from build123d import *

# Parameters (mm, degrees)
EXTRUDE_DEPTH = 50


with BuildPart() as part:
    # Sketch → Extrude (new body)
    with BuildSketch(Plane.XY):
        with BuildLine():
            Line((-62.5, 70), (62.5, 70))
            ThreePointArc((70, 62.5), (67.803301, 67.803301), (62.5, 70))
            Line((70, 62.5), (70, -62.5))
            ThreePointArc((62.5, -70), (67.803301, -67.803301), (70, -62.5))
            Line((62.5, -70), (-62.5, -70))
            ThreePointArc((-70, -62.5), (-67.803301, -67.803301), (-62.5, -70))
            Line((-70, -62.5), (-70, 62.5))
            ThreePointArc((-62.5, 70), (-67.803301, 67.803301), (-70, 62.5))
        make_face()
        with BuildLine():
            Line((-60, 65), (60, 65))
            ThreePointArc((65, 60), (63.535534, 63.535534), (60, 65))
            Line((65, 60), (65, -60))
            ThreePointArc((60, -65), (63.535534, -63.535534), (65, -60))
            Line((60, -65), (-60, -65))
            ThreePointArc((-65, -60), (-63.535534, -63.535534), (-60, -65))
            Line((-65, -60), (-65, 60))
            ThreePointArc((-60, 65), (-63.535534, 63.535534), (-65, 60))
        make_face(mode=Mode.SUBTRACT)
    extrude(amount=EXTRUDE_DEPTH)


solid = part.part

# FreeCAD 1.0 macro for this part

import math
import FreeCAD as App
import Part
import Sketcher

V = App.Vector
Q = App.Units.Quantity

doc = App.newDocument("Part")
body = doc.addObject("PartDesign::Body", "Body")

sketch1 = body.newObject("Sketcher::SketchObject", "Sketch")
sketch1.AttachmentSupport = (doc.getObject("XY_Plane"), [""])
sketch1.MapMode = "FlatFace"
sketch1.addGeometry(Part.LineSegment(V(62.5, 70, 0), V(-62.5, 70, 0)), False)
sketch1.addGeometry(Part.ArcOfCircle(Part.Circle(V(-62.5, 62.5, 0), V(0, 0, 1), 7.5), math.radians(89.999996), math.radians(180.000004)), False)
sketch1.addGeometry(Part.LineSegment(V(-70, 62.5, 0), V(-70, -62.5, 0)), False)
sketch1.addGeometry(Part.ArcOfCircle(Part.Circle(V(-62.5, -62.5, 0), V(0, 0, 1), 7.5), math.radians(179.999996), math.radians(270.000004)), False)
sketch1.addGeometry(Part.LineSegment(V(-62.5, -70, 0), V(62.5, -70, 0)), False)
sketch1.addGeometry(Part.ArcOfCircle(Part.Circle(V(62.5, -62.5, 0), V(0, 0, 1), 7.5), math.radians(-90.000004), math.radians(0.000004)), False)
sketch1.addGeometry(Part.LineSegment(V(70, -62.5, 0), V(70, 62.5, 0)), False)
sketch1.addGeometry(Part.ArcOfCircle(Part.Circle(V(62.5, 62.5, 0), V(0, 0, 1), 7.5), math.radians(-0.000004), math.radians(90.000004)), False)
sketch1.addGeometry(Part.LineSegment(V(-60, 65, 0), V(60, 65, 0)), False)
sketch1.addGeometry(Part.ArcOfCircle(Part.Circle(V(60, 60, 0), V(0, 0, 1), 5), math.radians(-0.000004), math.radians(90.000004)), False)
sketch1.addGeometry(Part.LineSegment(V(65, 60, 0), V(65, -60, 0)), False)
sketch1.addGeometry(Part.ArcOfCircle(Part.Circle(V(60, -60, 0), V(0, 0, 1), 5), math.radians(-90.000004), math.radians(0.000004)), False)
sketch1.addGeometry(Part.LineSegment(V(60, -65, 0), V(-60, -65, 0)), False)
sketch1.addGeometry(Part.ArcOfCircle(Part.Circle(V(-60, -60, 0), V(0, 0, 1), 5), math.radians(179.999996), math.radians(270.000004)), False)
sketch1.addGeometry(Part.LineSegment(V(-65, -60, 0), V(-65, 60, 0)), False)
sketch1.addGeometry(Part.ArcOfCircle(Part.Circle(V(-60, 60, 0), V(0, 0, 1), 5), math.radians(89.999996), math.radians(180.000004)), False)
sketch1.addConstraint(Sketcher.Constraint("Tangent", 0, 2, 1, 1))
sketch1.addConstraint(Sketcher.Constraint("Tangent", 1, 2, 2, 1))
sketch1.addConstraint(Sketcher.Constraint("Tangent", 2, 2, 3, 1))
sketch1.addConstraint(Sketcher.Constraint("Tangent", 3, 2, 4, 1))
sketch1.addConstraint(Sketcher.Constraint("Tangent", 4, 2, 5, 1))
sketch1.addConstraint(Sketcher.Constraint("Tangent", 5, 2, 6, 1))
sketch1.addConstraint(Sketcher.Constraint("Tangent", 6, 2, 7, 1))
sketch1.addConstraint(Sketcher.Constraint("Tangent", 7, 2, 0, 1))
sketch1.addConstraint(Sketcher.Constraint("Tangent", 8, 2, 9, 2))
sketch1.addConstraint(Sketcher.Constraint("Tangent", 9, 1, 10, 1))
sketch1.addConstraint(Sketcher.Constraint("Tangent", 10, 2, 11, 2))
sketch1.addConstraint(Sketcher.Constraint("Tangent", 11, 1, 12, 1))
sketch1.addConstraint(Sketcher.Constraint("Tangent", 12, 2, 13, 2))
sketch1.addConstraint(Sketcher.Constraint("Tangent", 13, 1, 14, 1))
sketch1.addConstraint(Sketcher.Constraint("Tangent", 14, 2, 15, 2))
sketch1.addConstraint(Sketcher.Constraint("Tangent", 15, 1, 8, 1))
sketch1.addConstraint(Sketcher.Constraint("Horizontal", 0))
sketch1.addConstraint(Sketcher.Constraint("Vertical", 2))
sketch1.addConstraint(Sketcher.Constraint("Horizontal", 4))
sketch1.addConstraint(Sketcher.Constraint("Vertical", 6))
sketch1.addConstraint(Sketcher.Constraint("Horizontal", 8))
sketch1.addConstraint(Sketcher.Constraint("Vertical", 10))
sketch1.addConstraint(Sketcher.Constraint("Horizontal", 12))
sketch1.addConstraint(Sketcher.Constraint("Vertical", 14))
sketch1.addConstraint(Sketcher.Constraint("Equal", 1, 3))
sketch1.addConstraint(Sketcher.Constraint("Equal", 3, 5))
sketch1.addConstraint(Sketcher.Constraint("Equal", 5, 7))
sketch1.addConstraint(Sketcher.Constraint("Equal", 9, 11))
sketch1.addConstraint(Sketcher.Constraint("Equal", 11, 13))
sketch1.addConstraint(Sketcher.Constraint("Equal", 13, 15))
sketch1.addConstraint(Sketcher.Constraint("Symmetric", 1, 3, 5, 3, -1, 1))
sketch1.addConstraint(Sketcher.Constraint("Symmetric", 9, 3, 13, 3, -1, 1))
sketch1.addConstraint(Sketcher.Constraint("Equal", 4, 2))
sketch1.addConstraint(Sketcher.Constraint("Equal", 12, 10))
sketch1.addConstraint(Sketcher.Constraint("Radius", 9, Q("5 mm")))
sketch1.addConstraint(Sketcher.Constraint("Radius", 1, Q("7.5 mm")))
sketch1.addConstraint(Sketcher.Constraint("DistanceX", 0, 2, 0, 1, Q("125 mm")))
sketch1.addConstraint(Sketcher.Constraint("DistanceX", 8, 1, 8, 2, Q("120 mm")))
pad1 = body.newObject("PartDesign::Pad", "Pad")
pad1.Profile = sketch1
pad1.Length = 50

doc.recompute()
